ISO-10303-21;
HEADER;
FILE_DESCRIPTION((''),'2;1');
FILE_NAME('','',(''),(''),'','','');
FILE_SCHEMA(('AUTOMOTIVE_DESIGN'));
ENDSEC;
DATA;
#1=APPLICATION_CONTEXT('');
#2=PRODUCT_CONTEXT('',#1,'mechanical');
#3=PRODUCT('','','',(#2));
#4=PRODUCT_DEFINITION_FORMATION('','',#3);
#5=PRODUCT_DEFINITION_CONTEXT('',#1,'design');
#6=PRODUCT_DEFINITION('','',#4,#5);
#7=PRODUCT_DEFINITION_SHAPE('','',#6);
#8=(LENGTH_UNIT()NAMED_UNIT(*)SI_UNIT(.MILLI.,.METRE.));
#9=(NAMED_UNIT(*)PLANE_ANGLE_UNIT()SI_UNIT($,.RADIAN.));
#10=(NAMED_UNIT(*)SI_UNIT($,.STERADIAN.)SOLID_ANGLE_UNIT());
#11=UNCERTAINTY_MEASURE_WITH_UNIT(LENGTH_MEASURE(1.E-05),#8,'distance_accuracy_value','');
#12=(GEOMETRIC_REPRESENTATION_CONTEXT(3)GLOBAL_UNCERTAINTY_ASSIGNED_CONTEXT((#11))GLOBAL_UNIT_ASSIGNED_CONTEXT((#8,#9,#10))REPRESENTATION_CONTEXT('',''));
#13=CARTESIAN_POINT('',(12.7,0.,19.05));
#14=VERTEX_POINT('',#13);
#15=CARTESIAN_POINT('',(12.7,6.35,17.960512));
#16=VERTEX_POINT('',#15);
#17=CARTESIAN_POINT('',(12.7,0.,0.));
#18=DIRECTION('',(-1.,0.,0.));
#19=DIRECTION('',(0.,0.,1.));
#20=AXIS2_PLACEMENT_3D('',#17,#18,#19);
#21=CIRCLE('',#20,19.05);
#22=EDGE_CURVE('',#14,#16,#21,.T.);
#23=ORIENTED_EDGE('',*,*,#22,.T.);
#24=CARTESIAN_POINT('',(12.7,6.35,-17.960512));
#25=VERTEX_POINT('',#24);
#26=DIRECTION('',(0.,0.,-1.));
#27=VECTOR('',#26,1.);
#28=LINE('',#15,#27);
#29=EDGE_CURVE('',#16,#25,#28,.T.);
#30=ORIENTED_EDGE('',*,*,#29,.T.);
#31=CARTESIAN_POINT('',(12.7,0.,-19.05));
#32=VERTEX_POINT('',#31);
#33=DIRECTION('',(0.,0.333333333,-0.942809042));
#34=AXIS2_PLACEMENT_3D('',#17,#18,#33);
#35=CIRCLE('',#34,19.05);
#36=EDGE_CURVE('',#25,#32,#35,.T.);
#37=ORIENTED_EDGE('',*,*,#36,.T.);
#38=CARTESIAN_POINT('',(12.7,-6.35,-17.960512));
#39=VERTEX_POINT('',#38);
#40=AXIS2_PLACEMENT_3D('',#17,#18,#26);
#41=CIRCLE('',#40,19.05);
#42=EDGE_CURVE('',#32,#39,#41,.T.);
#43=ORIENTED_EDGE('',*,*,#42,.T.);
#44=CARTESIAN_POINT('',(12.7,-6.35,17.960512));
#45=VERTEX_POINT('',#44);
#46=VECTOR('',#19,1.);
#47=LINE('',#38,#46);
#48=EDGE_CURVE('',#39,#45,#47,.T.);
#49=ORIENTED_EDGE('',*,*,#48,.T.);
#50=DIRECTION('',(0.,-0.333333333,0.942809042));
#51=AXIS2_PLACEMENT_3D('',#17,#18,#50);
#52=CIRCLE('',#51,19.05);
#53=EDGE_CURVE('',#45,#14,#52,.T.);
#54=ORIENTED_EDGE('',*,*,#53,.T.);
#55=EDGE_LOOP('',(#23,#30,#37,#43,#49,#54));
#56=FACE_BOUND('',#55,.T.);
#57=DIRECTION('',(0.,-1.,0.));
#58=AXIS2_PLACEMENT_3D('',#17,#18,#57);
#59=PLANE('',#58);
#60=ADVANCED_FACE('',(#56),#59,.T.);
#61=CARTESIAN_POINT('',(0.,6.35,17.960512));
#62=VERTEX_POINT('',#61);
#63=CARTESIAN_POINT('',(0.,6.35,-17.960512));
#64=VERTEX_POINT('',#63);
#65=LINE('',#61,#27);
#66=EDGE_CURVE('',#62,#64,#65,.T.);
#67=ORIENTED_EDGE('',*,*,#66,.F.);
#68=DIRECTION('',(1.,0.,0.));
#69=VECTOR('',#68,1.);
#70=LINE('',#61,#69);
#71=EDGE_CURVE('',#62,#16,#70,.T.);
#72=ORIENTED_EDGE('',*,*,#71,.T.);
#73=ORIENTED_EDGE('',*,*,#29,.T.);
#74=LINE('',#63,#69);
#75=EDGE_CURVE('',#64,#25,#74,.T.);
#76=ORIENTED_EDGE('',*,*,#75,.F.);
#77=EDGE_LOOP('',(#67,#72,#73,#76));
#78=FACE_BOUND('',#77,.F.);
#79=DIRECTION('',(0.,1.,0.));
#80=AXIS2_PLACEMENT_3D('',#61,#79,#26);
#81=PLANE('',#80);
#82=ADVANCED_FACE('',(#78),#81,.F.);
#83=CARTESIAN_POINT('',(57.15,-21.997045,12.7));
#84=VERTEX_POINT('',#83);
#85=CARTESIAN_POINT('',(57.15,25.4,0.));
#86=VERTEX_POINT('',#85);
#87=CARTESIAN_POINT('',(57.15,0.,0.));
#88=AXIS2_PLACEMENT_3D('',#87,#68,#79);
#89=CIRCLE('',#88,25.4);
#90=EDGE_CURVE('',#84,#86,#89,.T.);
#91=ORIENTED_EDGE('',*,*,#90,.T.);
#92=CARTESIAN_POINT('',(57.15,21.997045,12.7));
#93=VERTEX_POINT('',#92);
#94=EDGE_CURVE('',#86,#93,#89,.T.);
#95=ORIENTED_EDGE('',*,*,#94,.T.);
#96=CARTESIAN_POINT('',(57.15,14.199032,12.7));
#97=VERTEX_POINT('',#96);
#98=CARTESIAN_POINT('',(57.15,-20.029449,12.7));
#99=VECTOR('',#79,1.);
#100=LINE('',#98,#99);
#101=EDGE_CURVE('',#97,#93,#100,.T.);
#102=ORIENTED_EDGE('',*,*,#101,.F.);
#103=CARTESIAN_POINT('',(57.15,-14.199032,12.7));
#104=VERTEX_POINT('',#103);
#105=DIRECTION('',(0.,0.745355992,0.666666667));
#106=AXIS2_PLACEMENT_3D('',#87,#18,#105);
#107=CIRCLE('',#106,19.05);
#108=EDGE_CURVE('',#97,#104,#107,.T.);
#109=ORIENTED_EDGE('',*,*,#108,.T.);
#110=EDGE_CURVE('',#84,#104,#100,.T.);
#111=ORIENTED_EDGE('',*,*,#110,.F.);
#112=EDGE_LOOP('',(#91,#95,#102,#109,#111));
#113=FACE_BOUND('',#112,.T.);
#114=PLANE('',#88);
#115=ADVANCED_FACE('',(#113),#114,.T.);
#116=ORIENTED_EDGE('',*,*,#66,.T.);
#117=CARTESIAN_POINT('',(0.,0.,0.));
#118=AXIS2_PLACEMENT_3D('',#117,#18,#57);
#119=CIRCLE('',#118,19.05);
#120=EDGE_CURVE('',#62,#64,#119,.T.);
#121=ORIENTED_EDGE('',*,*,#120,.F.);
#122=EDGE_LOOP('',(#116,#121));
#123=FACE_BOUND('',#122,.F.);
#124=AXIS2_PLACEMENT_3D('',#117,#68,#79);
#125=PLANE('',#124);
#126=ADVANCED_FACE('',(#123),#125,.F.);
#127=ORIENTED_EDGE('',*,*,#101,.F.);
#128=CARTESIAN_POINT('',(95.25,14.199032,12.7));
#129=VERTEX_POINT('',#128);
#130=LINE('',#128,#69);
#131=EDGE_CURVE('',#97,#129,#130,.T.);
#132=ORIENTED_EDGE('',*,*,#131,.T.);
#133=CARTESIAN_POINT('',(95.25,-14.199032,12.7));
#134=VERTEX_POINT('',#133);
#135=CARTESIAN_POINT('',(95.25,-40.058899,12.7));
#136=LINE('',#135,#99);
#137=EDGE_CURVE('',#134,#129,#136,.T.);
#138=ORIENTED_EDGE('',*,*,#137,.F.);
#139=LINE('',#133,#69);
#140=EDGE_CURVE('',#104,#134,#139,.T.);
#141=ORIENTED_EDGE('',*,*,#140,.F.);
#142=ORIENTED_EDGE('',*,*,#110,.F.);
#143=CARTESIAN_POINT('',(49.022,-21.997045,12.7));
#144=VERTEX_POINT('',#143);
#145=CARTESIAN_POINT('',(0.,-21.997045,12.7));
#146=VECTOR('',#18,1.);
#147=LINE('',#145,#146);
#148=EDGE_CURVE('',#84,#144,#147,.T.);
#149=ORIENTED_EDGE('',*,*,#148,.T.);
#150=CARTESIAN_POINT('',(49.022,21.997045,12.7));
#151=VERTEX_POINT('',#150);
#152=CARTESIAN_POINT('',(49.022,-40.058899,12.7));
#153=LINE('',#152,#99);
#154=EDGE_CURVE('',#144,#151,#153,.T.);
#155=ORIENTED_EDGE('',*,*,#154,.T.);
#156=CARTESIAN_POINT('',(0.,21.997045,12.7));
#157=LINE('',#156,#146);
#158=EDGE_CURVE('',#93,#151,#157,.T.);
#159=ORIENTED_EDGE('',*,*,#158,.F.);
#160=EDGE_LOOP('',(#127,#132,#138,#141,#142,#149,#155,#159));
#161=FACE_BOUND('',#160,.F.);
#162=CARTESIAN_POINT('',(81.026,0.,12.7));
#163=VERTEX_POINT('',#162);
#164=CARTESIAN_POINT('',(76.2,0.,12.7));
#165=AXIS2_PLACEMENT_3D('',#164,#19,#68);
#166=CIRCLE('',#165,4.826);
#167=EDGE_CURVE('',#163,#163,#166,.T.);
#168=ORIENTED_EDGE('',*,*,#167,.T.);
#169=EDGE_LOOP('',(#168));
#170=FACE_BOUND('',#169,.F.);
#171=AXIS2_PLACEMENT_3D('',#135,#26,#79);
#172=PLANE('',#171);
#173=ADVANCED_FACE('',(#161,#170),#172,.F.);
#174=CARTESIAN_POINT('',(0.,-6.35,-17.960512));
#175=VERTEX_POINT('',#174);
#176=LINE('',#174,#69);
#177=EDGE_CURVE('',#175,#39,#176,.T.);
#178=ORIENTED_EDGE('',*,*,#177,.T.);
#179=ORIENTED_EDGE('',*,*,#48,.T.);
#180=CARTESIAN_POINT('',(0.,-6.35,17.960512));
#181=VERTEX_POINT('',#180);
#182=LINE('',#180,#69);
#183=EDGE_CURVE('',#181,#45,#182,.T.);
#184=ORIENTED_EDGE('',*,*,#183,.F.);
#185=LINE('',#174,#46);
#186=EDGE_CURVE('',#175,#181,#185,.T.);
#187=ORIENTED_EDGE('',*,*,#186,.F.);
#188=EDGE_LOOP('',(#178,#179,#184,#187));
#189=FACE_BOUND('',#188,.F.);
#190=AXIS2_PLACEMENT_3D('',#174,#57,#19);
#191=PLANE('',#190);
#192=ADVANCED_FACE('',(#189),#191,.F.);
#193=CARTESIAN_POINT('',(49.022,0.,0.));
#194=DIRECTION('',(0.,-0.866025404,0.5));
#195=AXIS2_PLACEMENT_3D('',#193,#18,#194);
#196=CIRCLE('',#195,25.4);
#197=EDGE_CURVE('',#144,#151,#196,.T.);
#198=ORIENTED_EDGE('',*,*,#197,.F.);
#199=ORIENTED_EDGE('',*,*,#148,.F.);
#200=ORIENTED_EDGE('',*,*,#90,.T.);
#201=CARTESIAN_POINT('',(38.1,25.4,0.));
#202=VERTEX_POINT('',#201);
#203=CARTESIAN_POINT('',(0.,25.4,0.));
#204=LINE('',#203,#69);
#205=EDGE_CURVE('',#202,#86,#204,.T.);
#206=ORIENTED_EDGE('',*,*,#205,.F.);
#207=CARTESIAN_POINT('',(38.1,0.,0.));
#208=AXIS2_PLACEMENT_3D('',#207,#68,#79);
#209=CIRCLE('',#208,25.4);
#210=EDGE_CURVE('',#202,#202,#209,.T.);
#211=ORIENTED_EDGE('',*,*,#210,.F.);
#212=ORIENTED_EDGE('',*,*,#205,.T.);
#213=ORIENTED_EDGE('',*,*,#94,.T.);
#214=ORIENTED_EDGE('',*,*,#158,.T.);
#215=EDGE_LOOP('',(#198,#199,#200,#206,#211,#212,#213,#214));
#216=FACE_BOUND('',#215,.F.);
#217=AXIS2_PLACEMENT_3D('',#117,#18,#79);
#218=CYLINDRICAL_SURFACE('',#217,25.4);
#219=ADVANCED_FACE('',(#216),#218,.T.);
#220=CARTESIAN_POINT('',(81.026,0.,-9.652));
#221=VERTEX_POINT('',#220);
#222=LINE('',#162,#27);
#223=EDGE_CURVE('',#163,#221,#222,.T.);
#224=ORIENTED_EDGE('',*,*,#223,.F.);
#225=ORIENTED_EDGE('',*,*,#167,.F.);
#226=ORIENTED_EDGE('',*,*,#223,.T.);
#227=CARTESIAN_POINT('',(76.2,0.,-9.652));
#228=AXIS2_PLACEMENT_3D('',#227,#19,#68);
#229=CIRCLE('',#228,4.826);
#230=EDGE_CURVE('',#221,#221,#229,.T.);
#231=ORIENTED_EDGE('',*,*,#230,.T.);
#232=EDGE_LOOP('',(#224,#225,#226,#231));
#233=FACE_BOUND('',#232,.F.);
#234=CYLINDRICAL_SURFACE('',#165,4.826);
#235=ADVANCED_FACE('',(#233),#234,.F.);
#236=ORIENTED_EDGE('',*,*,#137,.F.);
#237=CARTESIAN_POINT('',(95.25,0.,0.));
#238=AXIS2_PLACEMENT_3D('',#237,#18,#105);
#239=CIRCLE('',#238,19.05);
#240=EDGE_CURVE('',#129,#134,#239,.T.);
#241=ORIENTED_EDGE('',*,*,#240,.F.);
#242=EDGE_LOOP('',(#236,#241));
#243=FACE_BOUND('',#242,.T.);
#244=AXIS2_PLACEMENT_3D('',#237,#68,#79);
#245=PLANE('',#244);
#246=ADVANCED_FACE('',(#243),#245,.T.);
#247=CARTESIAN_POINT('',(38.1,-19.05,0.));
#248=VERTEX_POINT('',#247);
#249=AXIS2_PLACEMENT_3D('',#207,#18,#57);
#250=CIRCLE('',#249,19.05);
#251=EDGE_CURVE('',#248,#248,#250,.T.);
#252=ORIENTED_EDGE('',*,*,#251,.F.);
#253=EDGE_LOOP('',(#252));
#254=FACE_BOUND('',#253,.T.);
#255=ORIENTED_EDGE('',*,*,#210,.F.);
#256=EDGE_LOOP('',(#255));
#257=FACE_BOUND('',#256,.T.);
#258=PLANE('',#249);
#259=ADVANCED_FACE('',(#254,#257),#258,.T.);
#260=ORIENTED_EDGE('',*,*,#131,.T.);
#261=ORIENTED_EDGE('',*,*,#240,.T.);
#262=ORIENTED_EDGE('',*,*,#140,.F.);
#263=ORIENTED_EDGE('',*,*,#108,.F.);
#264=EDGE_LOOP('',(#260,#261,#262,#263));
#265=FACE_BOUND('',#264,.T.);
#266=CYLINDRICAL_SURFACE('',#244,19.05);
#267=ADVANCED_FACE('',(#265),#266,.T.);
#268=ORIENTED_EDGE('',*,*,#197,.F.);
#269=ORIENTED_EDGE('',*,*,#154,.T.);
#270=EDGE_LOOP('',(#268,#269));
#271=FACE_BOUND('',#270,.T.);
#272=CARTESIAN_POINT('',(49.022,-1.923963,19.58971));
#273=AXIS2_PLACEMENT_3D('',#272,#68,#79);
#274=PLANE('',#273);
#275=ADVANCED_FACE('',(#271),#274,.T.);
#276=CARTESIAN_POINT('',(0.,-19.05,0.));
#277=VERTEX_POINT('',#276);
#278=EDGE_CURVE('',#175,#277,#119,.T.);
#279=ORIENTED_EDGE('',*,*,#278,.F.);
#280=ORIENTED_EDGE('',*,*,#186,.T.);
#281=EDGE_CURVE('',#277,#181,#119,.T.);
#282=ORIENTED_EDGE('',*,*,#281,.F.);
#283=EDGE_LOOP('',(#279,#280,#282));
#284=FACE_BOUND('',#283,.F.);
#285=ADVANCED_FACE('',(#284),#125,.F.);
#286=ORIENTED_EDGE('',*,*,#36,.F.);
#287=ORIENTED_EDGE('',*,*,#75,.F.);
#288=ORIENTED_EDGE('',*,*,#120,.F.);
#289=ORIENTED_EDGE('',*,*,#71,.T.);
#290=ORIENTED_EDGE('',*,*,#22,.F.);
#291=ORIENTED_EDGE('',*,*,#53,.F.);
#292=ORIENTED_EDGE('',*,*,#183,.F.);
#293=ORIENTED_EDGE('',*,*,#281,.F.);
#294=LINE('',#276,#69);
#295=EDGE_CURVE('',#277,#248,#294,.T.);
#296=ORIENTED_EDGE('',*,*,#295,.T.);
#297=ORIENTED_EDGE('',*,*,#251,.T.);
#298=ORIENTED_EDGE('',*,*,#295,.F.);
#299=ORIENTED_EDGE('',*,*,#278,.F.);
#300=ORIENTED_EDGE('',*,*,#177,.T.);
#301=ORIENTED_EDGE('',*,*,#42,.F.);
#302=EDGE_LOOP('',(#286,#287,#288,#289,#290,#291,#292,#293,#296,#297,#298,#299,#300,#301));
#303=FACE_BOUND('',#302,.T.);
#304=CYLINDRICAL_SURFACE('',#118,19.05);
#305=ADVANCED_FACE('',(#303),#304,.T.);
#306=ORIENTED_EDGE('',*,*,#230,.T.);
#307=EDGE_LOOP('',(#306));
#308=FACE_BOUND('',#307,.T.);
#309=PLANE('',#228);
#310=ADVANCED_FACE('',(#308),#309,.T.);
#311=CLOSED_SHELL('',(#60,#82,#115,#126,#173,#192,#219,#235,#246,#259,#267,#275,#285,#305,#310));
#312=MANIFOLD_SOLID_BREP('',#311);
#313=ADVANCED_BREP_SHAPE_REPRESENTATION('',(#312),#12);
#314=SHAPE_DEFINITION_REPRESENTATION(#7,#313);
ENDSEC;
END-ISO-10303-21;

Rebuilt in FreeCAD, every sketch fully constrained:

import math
import FreeCAD as App
import Part
import Sketcher

V = App.Vector
Q = App.Units.Quantity


def add_polygon(sketch, points):
    """Adds a closed chain of lines whose ends are joined by coincident constraints."""
    first, n = sketch.GeometryCount, len(points)
    for a, b in zip(points, points[1:] + points[:1]):
        sketch.addGeometry(Part.LineSegment(App.Vector(*a, 0), App.Vector(*b, 0)), False)
    for i in range(n):
        sketch.addConstraint(Sketcher.Constraint("Coincident", first + i, 2, first + (i + 1) % n, 1))

doc = App.newDocument("Part")
body = doc.addObject("PartDesign::Body", "Body")

# Sketch on YZ plane
sketch1 = doc.addObject("Sketcher::SketchObject", "Sketch")
body.addObject(sketch1)
sketch1.AttachmentSupport = (doc.YZ_Plane, [""])
sketch1.MapMode = "FlatFace"
sketch1.addGeometry(Part.Circle(V(0, 0, 0), V(0, 0, 1), 25), False)
sketch1.addConstraint([
    Sketcher.Constraint("Coincident", 0, 3, -1, 1),
    Sketcher.Constraint("Diameter", 0, Q("2 in")),
])
pad1 = doc.addObject("PartDesign::Pad", "Pad")
body.addObject(pad1)
pad1.Profile = sketch1
pad1.Length = Q("3.75 in")

# Sketch on YZ plane
sketch2 = doc.addObject("Sketcher::SketchObject", "Sketch001")
body.addObject(sketch2)
sketch2.AttachmentSupport = (doc.YZ_Plane, [""])
sketch2.MapMode = "FlatFace"
sketch2.AttachmentOffset = App.Placement(V(0, 0, 3.75 * 25.4), App.Rotation())
sketch2.addGeometry([
    Part.Circle(V(0, 0, 0), V(0, 0, 1), 25),
    Part.Circle(V(0, 0, 0), V(0, 0, 1), 19),
], False)
sketch2.addConstraint([
    Sketcher.Constraint("Coincident", 0, 3, -1, 1),
    Sketcher.Constraint("Coincident", 1, 3, -1, 1),
    Sketcher.Constraint("Diameter", 0, Q("2 in")),
    Sketcher.Constraint("Diameter", 1, Q("1.5 in")),
])
pocket1 = doc.addObject("PartDesign::Pocket", "Pocket")
body.addObject(pocket1)
pocket1.Profile = sketch2
pocket1.Length = Q("1.5 in")

# Sketch on YZ plane
sketch3 = doc.addObject("Sketcher::SketchObject", "Sketch002")
body.addObject(sketch3)
sketch3.AttachmentSupport = (doc.YZ_Plane, [""])
sketch3.MapMode = "FlatFace"
sketch3.addGeometry([
    Part.Circle(V(0, 0, 0), V(0, 0, 1), 25),
    Part.Circle(V(0, 0, 0), V(0, 0, 1), 19),
], False)
sketch3.addConstraint([
    Sketcher.Constraint("Coincident", 0, 3, -1, 1),
    Sketcher.Constraint("Coincident", 1, 3, -1, 1),
    Sketcher.Constraint("Diameter", 0, Q("2 in")),
    Sketcher.Constraint("Diameter", 1, Q("1.5 in")),
])
pocket2 = doc.addObject("PartDesign::Pocket", "Pocket001")
body.addObject(pocket2)
pocket2.Profile = sketch3
pocket2.Length = Q("1.5 in")
pocket2.Reversed = True

# Sketch on YZ plane
sketch4 = doc.addObject("Sketcher::SketchObject", "Sketch003")
body.addObject(sketch4)
sketch4.AttachmentSupport = (doc.YZ_Plane, [""])
sketch4.MapMode = "FlatFace"
sketch4.addGeometry([
    Part.ArcOfCircle(Part.Circle(V(0, 0, 0), V(0, 0, 1), 19), math.radians(90), math.radians(109.47)),  # 0
    Part.ArcOfCircle(Part.Circle(V(0, 0, 0), V(0, 0, 1), 19), math.radians(70.53), math.radians(90)),  # 1
    Part.LineSegment(V(6, 18, 0), V(6, -18, 0)),  # 2
    Part.ArcOfCircle(Part.Circle(V(0, 0, 0), V(0, 0, 1), 19), math.radians(-90), math.radians(-70.53)),  # 3
    Part.ArcOfCircle(Part.Circle(V(0, 0, 0), V(0, 0, 1), 19), math.radians(-109.47), math.radians(-90)),  # 4
    Part.LineSegment(V(-6, -18, 0), V(-6, 18, 0)),  # 5
], False)
sketch4.addConstraint([
    Sketcher.Constraint("Tangent", 0, 1, 1, 2),
    Sketcher.Constraint("Coincident", 1, 1, 2, 1),
    Sketcher.Constraint("Coincident", 2, 2, 3, 2),
    Sketcher.Constraint("Tangent", 3, 1, 4, 2),
    Sketcher.Constraint("Coincident", 4, 1, 5, 1),
    Sketcher.Constraint("Coincident", 5, 2, 0, 2),
    Sketcher.Constraint("Vertical", 2),
    Sketcher.Constraint("Vertical", 5),
    Sketcher.Constraint("Coincident", 0, 3, -1, 1),
    Sketcher.Constraint("Coincident", 3, 3, -1, 1),
    Sketcher.Constraint("Equal", 0, 1),
    Sketcher.Constraint("Equal", 1, 3),
    Sketcher.Constraint("Equal", 3, 4),
    Sketcher.Constraint("PointOnObject", 0, 1, -2),
    Sketcher.Constraint("PointOnObject", 3, 1, -2),
    Sketcher.Constraint("Horizontal", 2, 2, 4, 1),
    Sketcher.Constraint("Radius", 0, Q("0.75 in")),
    Sketcher.Constraint("DistanceX", 4, 1, 2, 2, Q("0.5 in")),
])
pocket3 = doc.addObject("PartDesign::Pocket", "Pocket002")
body.addObject(pocket3)
pocket3.Profile = sketch4
pocket3.Length = Q("0.5 in")
pocket3.Reversed = True

# Sketch on YZ plane
sketch5 = doc.addObject("Sketcher::SketchObject", "Sketch004")
body.addObject(sketch5)
sketch5.AttachmentSupport = (doc.YZ_Plane, [""])
sketch5.MapMode = "FlatFace"
sketch5.AttachmentOffset = App.Placement(V(0, 0, 3.75 * 25.4), App.Rotation())
add_polygon(sketch5, [(-40, 25), (-40, 13), (36, 13), (36, 25)])  # lines 0-3
sketch5.addConstraint([
    Sketcher.Constraint("Vertical", 0),
    Sketcher.Constraint("Horizontal", 1),
    Sketcher.Constraint("Vertical", 2),
    Sketcher.Constraint("Horizontal", 3),
    Sketcher.Constraint("DistanceX", 1, 1, 1, 2, Q("3 in")),
    Sketcher.Constraint("DistanceY", 0, 2, 0, 1, Q("0.5 in")),
    Sketcher.Constraint("DistanceY", -1, 1, 2, 2, Q("1 in")),
    Sketcher.Constraint("DistanceX", 0, 2, -1, 1, 40.058899),
])
pocket4 = doc.addObject("PartDesign::Pocket", "Pocket003")
body.addObject(pocket4)
pocket4.Profile = sketch5
pocket4.Length = Q("1.82 in")

# Sketch on XY plane
sketch6 = doc.addObject("Sketcher::SketchObject", "Sketch005")
body.addObject(sketch6)
sketch6.AttachmentSupport = (doc.XY_Plane, [""])
sketch6.MapMode = "FlatFace"
sketch6.AttachmentOffset = App.Placement(V(0, 0, 0.5 * 25.4), App.Rotation())
sketch6.addGeometry(Part.Circle(V(76.2, 0, 0), V(0, 0, 1), 4.8), False)
sketch6.addConstraint([
    Sketcher.Constraint("PointOnObject", 0, 3, -1),
    Sketcher.Constraint("Diameter", 0, Q("0.38 in")),
    Sketcher.Constraint("DistanceX", -1, 1, 0, 3, Q("3 in")),
])
pocket5 = doc.addObject("PartDesign::Pocket", "Pocket004")
body.addObject(pocket5)
pocket5.Profile = sketch6
pocket5.Length = Q("0.88 in")

doc.recompute()
